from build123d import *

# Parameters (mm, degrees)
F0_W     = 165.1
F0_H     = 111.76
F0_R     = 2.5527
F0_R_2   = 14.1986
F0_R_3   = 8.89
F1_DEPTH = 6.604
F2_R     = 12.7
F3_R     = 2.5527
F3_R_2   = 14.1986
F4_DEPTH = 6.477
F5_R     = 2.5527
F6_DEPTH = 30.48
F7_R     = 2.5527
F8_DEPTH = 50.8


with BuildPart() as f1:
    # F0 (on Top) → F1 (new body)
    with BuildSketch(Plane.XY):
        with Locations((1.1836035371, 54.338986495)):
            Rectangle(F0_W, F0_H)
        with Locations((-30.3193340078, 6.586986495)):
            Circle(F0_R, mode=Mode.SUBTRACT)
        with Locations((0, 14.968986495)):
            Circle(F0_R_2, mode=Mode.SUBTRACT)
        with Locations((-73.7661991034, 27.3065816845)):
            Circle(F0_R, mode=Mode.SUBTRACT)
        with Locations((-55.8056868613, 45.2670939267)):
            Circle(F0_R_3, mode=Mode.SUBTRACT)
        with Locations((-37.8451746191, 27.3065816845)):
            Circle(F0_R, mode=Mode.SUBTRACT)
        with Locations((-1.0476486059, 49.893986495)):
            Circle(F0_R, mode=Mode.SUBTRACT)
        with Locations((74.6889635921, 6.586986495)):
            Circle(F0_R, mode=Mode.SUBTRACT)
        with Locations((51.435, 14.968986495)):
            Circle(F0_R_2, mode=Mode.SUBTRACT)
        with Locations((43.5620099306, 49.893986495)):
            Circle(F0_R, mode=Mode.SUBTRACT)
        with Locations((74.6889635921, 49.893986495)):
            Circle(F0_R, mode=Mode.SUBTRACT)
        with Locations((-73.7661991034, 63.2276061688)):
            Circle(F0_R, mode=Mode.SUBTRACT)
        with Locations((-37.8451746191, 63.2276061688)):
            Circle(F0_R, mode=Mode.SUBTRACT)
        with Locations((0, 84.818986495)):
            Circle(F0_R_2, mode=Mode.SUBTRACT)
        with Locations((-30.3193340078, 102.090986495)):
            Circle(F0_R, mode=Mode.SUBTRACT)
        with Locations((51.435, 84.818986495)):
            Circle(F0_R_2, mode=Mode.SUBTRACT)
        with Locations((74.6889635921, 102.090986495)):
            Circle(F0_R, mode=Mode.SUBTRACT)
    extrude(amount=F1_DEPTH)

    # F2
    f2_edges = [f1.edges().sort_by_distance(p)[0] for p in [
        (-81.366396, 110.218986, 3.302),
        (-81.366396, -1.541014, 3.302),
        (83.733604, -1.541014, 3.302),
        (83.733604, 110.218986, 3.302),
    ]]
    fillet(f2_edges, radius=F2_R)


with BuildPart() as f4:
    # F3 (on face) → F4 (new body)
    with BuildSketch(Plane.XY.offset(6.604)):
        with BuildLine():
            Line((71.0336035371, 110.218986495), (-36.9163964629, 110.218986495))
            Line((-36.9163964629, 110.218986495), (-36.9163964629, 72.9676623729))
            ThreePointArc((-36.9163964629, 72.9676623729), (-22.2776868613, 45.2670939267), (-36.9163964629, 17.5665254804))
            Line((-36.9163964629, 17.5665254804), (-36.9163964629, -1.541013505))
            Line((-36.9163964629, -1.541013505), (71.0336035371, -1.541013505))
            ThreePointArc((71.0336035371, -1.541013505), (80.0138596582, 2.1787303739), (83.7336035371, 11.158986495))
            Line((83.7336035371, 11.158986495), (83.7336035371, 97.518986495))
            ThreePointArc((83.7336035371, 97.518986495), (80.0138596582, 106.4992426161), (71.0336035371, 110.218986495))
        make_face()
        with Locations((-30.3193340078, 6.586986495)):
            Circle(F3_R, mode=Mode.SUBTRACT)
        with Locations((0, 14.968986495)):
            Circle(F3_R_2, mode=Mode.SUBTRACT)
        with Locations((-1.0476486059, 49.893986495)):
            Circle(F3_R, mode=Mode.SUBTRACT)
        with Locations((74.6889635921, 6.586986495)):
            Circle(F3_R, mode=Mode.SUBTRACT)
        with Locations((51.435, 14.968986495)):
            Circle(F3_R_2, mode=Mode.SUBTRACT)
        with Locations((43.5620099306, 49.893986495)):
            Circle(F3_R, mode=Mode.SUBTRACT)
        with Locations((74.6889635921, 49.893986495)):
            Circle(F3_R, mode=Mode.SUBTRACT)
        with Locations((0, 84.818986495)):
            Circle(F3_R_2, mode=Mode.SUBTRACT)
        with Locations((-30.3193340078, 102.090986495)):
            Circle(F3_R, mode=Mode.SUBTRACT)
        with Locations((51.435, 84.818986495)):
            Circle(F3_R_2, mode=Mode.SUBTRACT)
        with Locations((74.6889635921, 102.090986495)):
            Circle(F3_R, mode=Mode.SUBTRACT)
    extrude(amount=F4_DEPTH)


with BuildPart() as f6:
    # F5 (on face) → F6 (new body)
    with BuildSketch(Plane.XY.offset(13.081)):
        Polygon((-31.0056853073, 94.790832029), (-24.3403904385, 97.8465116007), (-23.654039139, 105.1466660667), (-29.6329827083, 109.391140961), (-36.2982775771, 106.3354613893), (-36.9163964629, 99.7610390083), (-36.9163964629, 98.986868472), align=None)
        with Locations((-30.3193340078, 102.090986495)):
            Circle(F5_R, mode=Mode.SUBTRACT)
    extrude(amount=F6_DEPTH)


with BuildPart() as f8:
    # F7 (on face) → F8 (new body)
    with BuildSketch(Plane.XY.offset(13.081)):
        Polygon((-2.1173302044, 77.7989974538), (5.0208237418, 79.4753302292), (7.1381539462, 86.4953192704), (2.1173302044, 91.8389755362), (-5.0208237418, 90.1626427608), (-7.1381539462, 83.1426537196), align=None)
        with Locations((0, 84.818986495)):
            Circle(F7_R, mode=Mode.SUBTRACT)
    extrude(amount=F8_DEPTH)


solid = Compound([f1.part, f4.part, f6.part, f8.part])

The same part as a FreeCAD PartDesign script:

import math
import FreeCAD as App
import Part
import Sketcher
from FreeCAD import Vector
Q = App.Units.Quantity


def edges_at(feature, points):
    """Names of the edges that pass closest to the given points."""
    edges = feature.Shape.Edges
    near = lambda p: min(range(len(edges)), key=lambda i: edges[i].distToShape(Part.Vertex(*p))[0])
    return sorted({f"Edge{near(p) + 1}" for p in points})


def add_polygon(sketch, points):
    """Adds a closed chain of lines whose ends are joined by coincident constraints."""
    first, n = sketch.GeometryCount, len(points)
    for a, b in zip(points, points[1:] + points[:1]):
        sketch.addGeometry(Part.LineSegment(App.Vector(*a, 0), App.Vector(*b, 0)), False)
    for i in range(n):
        sketch.addConstraint(Sketcher.Constraint("Coincident", first + i, 2, first + (i + 1) % n, 1))

doc = App.newDocument("Part")
body = doc.addObject("PartDesign::Body", "Body")

sketch1 = body.newObject("Sketcher::SketchObject", "Sketch")
sketch1.AttachmentSupport = (doc.getObject("XY_Plane"), [""])
sketch1.MapMode = "FlatFace"
add_polygon(sketch1, [(-81.4, 110.2), (-81.4, -1.5), (83.7, -1.5), (83.7, 110.2)])
sketch1.addGeometry(Part.Circle(Vector(-30.3, 6.6, 0), Vector(0, 0, 1), 2.6), False)
sketch1.addGeometry(Part.Circle(Vector(0, 15, 0), Vector(0, 0, 1), 14.2), False)
sketch1.addGeometry(Part.Circle(Vector(-73.8, 27.3, 0), Vector(0, 0, 1), 2.6), False)
sketch1.addGeometry(Part.Circle(Vector(-55.8, 45.3, 0), Vector(0, 0, 1), 8.9), False)
sketch1.addGeometry(Part.Circle(Vector(-37.8, 27.3, 0), Vector(0, 0, 1), 2.6), False)
sketch1.addGeometry(Part.Circle(Vector(-1, 49.9, 0), Vector(0, 0, 1), 2.6), False)
sketch1.addGeometry(Part.Circle(Vector(74.7, 6.6, 0), Vector(0, 0, 1), 2.6), False)
sketch1.addGeometry(Part.Circle(Vector(51.4, 15, 0), Vector(0, 0, 1), 14.2), False)
sketch1.addGeometry(Part.Circle(Vector(43.6, 49.9, 0), Vector(0, 0, 1), 2.6), False)
sketch1.addGeometry(Part.Circle(Vector(74.7, 49.9, 0), Vector(0, 0, 1), 2.6), False)
sketch1.addGeometry(Part.Circle(Vector(-73.8, 63.2, 0), Vector(0, 0, 1), 2.6), False)
sketch1.addGeometry(Part.Circle(Vector(-37.8, 63.2, 0), Vector(0, 0, 1), 2.6), False)
sketch1.addGeometry(Part.Circle(Vector(0, 84.8, 0), Vector(0, 0, 1), 14.2), False)
sketch1.addGeometry(Part.Circle(Vector(-30.3, 102.1, 0), Vector(0, 0, 1), 2.6), False)
sketch1.addGeometry(Part.Circle(Vector(51.4, 84.8, 0), Vector(0, 0, 1), 14.2), False)
sketch1.addGeometry(Part.Circle(Vector(74.7, 102.1, 0), Vector(0, 0, 1), 2.6), False)
sketch1.addConstraint([
    Sketcher.Constraint("Vertical", 0),
    Sketcher.Constraint("Horizontal", 1),
    Sketcher.Constraint("Vertical", 2),
    Sketcher.Constraint("Horizontal", 3),
    Sketcher.Constraint("Equal", 4, 6),
    Sketcher.Constraint("Equal", 6, 8),
    Sketcher.Constraint("Equal", 8, 9),
    Sketcher.Constraint("Equal", 9, 10),
    Sketcher.Constraint("Equal", 5, 11),
    Sketcher.Constraint("Equal", 10, 12),
    Sketcher.Constraint("Equal", 12, 13),
    Sketcher.Constraint("Equal", 13, 14),
    Sketcher.Constraint("Equal", 14, 15),
    Sketcher.Constraint("Equal", 11, 16),
    Sketcher.Constraint("Equal", 15, 17),
    Sketcher.Constraint("Equal", 16, 18),
    Sketcher.Constraint("Equal", 17, 19),
    Sketcher.Constraint("PointOnObject", 5, 3, -2),
    Sketcher.Constraint("PointOnObject", 16, 3, -2),
    Sketcher.Constraint("Horizontal", 6, 3, 8, 3),
    Sketcher.Constraint("Horizontal", 4, 3, 10, 3),
    Sketcher.Constraint("Horizontal", 5, 3, 11, 3),
    Sketcher.Constraint("Horizontal", 9, 3, 12, 3),
    Sketcher.Constraint("Horizontal", 12, 3, 13, 3),
    Sketcher.Constraint("Horizontal", 14, 3, 15, 3),
    Sketcher.Constraint("Horizontal", 16, 3, 18, 3),
    Sketcher.Constraint("Horizontal", 17, 3, 19, 3),
    Sketcher.Constraint("Vertical", 10, 3, 13, 3),
    Sketcher.Constraint("Vertical", 6, 3, 14, 3),
    Sketcher.Constraint("Vertical", 8, 3, 15, 3),
    Sketcher.Constraint("Vertical", 4, 3, 17, 3),
    Sketcher.Constraint("Vertical", 11, 3, 18, 3),
    Sketcher.Constraint("Vertical", 13, 3, 19, 3),
    Sketcher.Constraint("Diameter", 7, Q("0.7 in")),
    Sketcher.Constraint("Diameter", 4, Q("0.201 in")),
    Sketcher.Constraint("Diameter", 5, Q("1.118 in")),
    Sketcher.Constraint("DistanceX", 1, 1, 1, 2, Q("6.5 in")),
    Sketcher.Constraint("DistanceY", 0, 2, 0, 1, Q("4.4 in")),
    Sketcher.Constraint("DistanceY", 18, 3, 2, 2, Q("1 in")),
    Sketcher.Constraint("DistanceY", 4, 3, 5, 3, Q("0.33 in")),
    Sketcher.Constraint("DistanceY", 16, 3, 17, 3, Q("0.68 in")),
    Sketcher.Constraint("DistanceY", 11, 3, 18, 3, Q("2.75 in")),
    Sketcher.Constraint("DistanceX", -1, 1, 11, 3, Q("2.025 in")),
    Sketcher.Constraint("DistanceY", 5, 3, 9, 3, Q("1.375 in")),
    Sketcher.Constraint("DistanceX", 6, 3, -1, 1, Q("73.766199 mm")),
    Sketcher.Constraint("DistanceY", -1, 1, 6, 3, Q("27.306582 mm")),
    Sketcher.Constraint("DistanceX", 9, 3, -1, 1, Q("1.047649 mm")),
    Sketcher.Constraint("DistanceX", -1, 1, 12, 3, Q("43.56201 mm")),
    Sketcher.Constraint("DistanceX", 8, 3, 4, 3, Q("7.525841 mm")),
    Sketcher.Constraint("DistanceX", 7, 3, 9, 3, Q("54.758038 mm")),
    Sketcher.Constraint("DistanceX", 8, 3, 10, 3, Q("112.534138 mm")),
    Sketcher.Constraint("DistanceX", 7, 3, 10, 3, Q("130.49465 mm")),
    Sketcher.Constraint("DistanceY", 4, 3, 14, 3, Q("56.64062 mm")),
    Sketcher.Constraint("DistanceX", 0, 2, 8, 3, Q("43.521222 mm")),
    Sketcher.Constraint("DistanceY", -1, 1, 4, 3, Q("6.586986 mm")),
    Sketcher.Constraint("DistanceY", -1, 1, 7, 3, Q("45.267094 mm")),
])
pad1 = body.newObject("PartDesign::Pad", "Pad")
pad1.Profile = sketch1
pad1.Length = Q("0.26 in")
doc.recompute()

fillet = body.newObject("PartDesign::Fillet", "Fillet")
fillet.Base = (pad1, edges_at(pad1, [
    (-81.366, 110.219, 3.302),
    (-81.366, -1.541, 3.302),
    (83.734, -1.541, 3.302),
    (83.734, 110.219, 3.302),
]))
fillet.Radius = Q("0.5 in")
body2 = doc.addObject("PartDesign::Body", "Body001")

sketch2 = body2.newObject("Sketcher::SketchObject", "Sketch001")
sketch2.AttachmentSupport = (doc.getObject("XY_Plane001"), [""])
sketch2.MapMode = "FlatFace"
sketch2.AttachmentOffset = App.Placement(Vector(0, 0, 0.26 * 25.4), App.Rotation())
sketch2.addGeometry([
    Part.LineSegment(Vector(71, 110.2, 0), Vector(-36.9, 110.2, 0)),
    Part.LineSegment(Vector(-36.9, 110.2, 0), Vector(-36.9, 73, 0)),
    Part.ArcOfCircle(Part.Circle(Vector(-55.8, 45.3, 0), Vector(0, 0, 1), 33.5), math.radians(-56), math.radians(56)),
    Part.LineSegment(Vector(-36.9, 17.6, 0), Vector(-36.9, -1.5, 0)),
    Part.LineSegment(Vector(-36.9, -1.5, 0), Vector(71, -1.5, 0)),
    Part.ArcOfCircle(Part.Circle(Vector(71, 11.2, 0), Vector(0, 0, 1), 12.7), math.radians(-90), math.radians(0)),
    Part.LineSegment(Vector(83.7, 11.2, 0), Vector(83.7, 97.5, 0)),
    Part.ArcOfCircle(Part.Circle(Vector(71, 97.5, 0), Vector(0, 0, 1), 12.7), math.radians(0), math.radians(90)),
    Part.Circle(Vector(-30.3, 6.6, 0), Vector(0, 0, 1), 2.6),
    Part.Circle(Vector(0, 15, 0), Vector(0, 0, 1), 14.2),
    Part.Circle(Vector(-1, 49.9, 0), Vector(0, 0, 1), 2.6),
    Part.Circle(Vector(74.7, 6.6, 0), Vector(0, 0, 1), 2.6),
    Part.Circle(Vector(51.4, 15, 0), Vector(0, 0, 1), 14.2),
    Part.Circle(Vector(43.6, 49.9, 0), Vector(0, 0, 1), 2.6),
    Part.Circle(Vector(74.7, 49.9, 0), Vector(0, 0, 1), 2.6),
    Part.Circle(Vector(-30.3, 102.1, 0), Vector(0, 0, 1), 2.6),
    Part.Circle(Vector(0, 84.8, 0), Vector(0, 0, 1), 14.2),
    Part.Circle(Vector(51.4, 84.8, 0), Vector(0, 0, 1), 14.2),
    Part.Circle(Vector(74.7, 102.1, 0), Vector(0, 0, 1), 2.6),
], False)
sketch2.addConstraint([
    Sketcher.Constraint("Coincident", 0, 2, 1, 1),
    Sketcher.Constraint("Coincident", 1, 2, 2, 2),
    Sketcher.Constraint("Coincident", 2, 1, 3, 1),
    Sketcher.Constraint("Coincident", 3, 2, 4, 1),
    Sketcher.Constraint("Tangent", 4, 2, 5, 1),
    Sketcher.Constraint("Tangent", 5, 2, 6, 1),
    Sketcher.Constraint("Tangent", 6, 2, 7, 1),
    Sketcher.Constraint("Tangent", 7, 2, 0, 1),
    Sketcher.Constraint("Horizontal", 0),
    Sketcher.Constraint("Vertical", 1),
    Sketcher.Constraint("Vertical", 3),
    Sketcher.Constraint("Horizontal", 4),
    Sketcher.Constraint("Vertical", 6),
    Sketcher.Constraint("Equal", 5, 7),
    Sketcher.Constraint("Equal", 8, 10),
    Sketcher.Constraint("Equal", 10, 11),
    Sketcher.Constraint("Equal", 9, 12),
    Sketcher.Constraint("Equal", 11, 13),
    Sketcher.Constraint("Equal", 13, 14),
    Sketcher.Constraint("Equal", 14, 15),
    Sketcher.Constraint("Equal", 12, 16),
    Sketcher.Constraint("Equal", 16, 17),
    Sketcher.Constraint("Equal", 15, 18),
    Sketcher.Constraint("PointOnObject", 9, 3, -2),
    Sketcher.Constraint("PointOnObject", 16, 3, -2),
    Sketcher.Constraint("Horizontal", 8, 3, 11, 3),
    Sketcher.Constraint("Horizontal", 9, 3, 12, 3),
    Sketcher.Constraint("Horizontal", 10, 3, 13, 3),
    Sketcher.Constraint("Horizontal", 13, 3, 14, 3),
    Sketcher.Constraint("Horizontal", 16, 3, 17, 3),
    Sketcher.Constraint("Horizontal", 15, 3, 18, 3),
    Sketcher.Constraint("Vertical", 11, 3, 14, 3),
    Sketcher.Constraint("Vertical", 8, 3, 15, 3),
    Sketcher.Constraint("Vertical", 12, 3, 17, 3),
    Sketcher.Constraint("Vertical", 14, 3, 18, 3),
    Sketcher.Constraint("Vertical", 1, 2, 2, 1),
    Sketcher.Constraint("Radius", 5, Q("0.5 in")),
    Sketcher.Constraint("Radius", 2, Q("1.32 in")),
    Sketcher.Constraint("Diameter", 8, Q("0.201 in")),
    Sketcher.Constraint("Diameter", 9, Q("1.118 in")),
    Sketcher.Constraint("DistanceY", 6, 1, 6, 2, Q("3.4 in")),
    Sketcher.Constraint("DistanceY", 16, 3, 0, 2, Q("1 in")),
    Sketcher.Constraint("DistanceX", 0, 2, 0, 1, Q("4.25 in")),
    Sketcher.Constraint("DistanceY", 8, 3, 5, 3, Q("0.18 in")),
    Sketcher.Constraint("DistanceY", 8, 3, 9, 3, Q("0.33 in")),
    Sketcher.Constraint("DistanceY", 9, 3, 15, 3, Q("3.43 in")),
    Sketcher.Constraint("DistanceX", -1, 1, 12, 3, Q("2.025 in")),
    Sketcher.Constraint("DistanceY", 9, 3, 10, 3, Q("1.375 in")),
    Sketcher.Constraint("DistanceY", 3, 2, 3, 1, Q("19.107539 mm")),
    Sketcher.Constraint("DistanceY", 1, 2, 1, 1, Q("37.251324 mm")),
    Sketcher.Constraint("DistanceX", 10, 3, -1, 1, Q("1.047649 mm")),
    Sketcher.Constraint("DistanceX", -1, 1, 13, 3, Q("43.56201 mm")),
    Sketcher.Constraint("DistanceX", 2, 3, 10, 3, Q("54.758038 mm")),
    Sketcher.Constraint("DistanceX", 5, 3, 11, 3, Q("3.65536 mm")),
    Sketcher.Constraint("DistanceY", -1, 1, 2, 3, Q("45.267094 mm")),
    Sketcher.Constraint("DistanceX", 8, 3, -1, 1, Q("30.319334 mm")),
])
pad2 = body2.newObject("PartDesign::Pad", "Pad001")
pad2.Profile = sketch2
pad2.Length = Q("0.255 in")
body3 = doc.addObject("PartDesign::Body", "Body002")

sketch3 = body3.newObject("Sketcher::SketchObject", "Sketch002")
sketch3.AttachmentSupport = (doc.getObject("XY_Plane002"), [""])
sketch3.MapMode = "FlatFace"
sketch3.AttachmentOffset = App.Placement(Vector(0, 0, 0.515 * 25.4), App.Rotation())
add_polygon(sketch3, [(-31, 94.8), (-24.3, 97.8), (-23.7, 105.1), (-29.6, 109.4), (-36.3, 106.3), (-36.9, 99.8), (-36.9, 99)])
sketch3.addGeometry(Part.Circle(Vector(-30.3, 102.1, 0), Vector(0, 0, 1), 2.6), False)
sketch3.addConstraint([
    Sketcher.Constraint("Vertical", 5),
    Sketcher.Constraint("Parallel", 0, 3),
    Sketcher.Constraint("Parallel", 1, 4),
    Sketcher.Constraint("Parallel", 2, 6),
    Sketcher.Constraint("Equal", 0, 1),
    Sketcher.Constraint("Equal", 1, 2),
    Sketcher.Constraint("Equal", 2, 3),
    Sketcher.Constraint("Diameter", 7, Q("0.201 in")),
    Sketcher.Constraint("DistanceY", -1, 1, 4, 2, Q("3.9276 in")),
    Sketcher.Constraint("DistanceY", 5, 2, 5, 1, Q("0.774171 mm")),
    Sketcher.Constraint("DistanceY", 4, 2, 2, 2, Q("9.630102 mm")),
    Sketcher.Constraint("Distance", 0, Q("7.332348 mm")),
    Sketcher.Constraint("Distance", 6, Q("7.248671 mm")),
    Sketcher.Constraint("DistanceX", 0, 2, -1, 1, Q("24.34039 mm")),
    Sketcher.Constraint("DistanceY", -1, 1, 0, 2, Q("97.846512 mm")),
    Sketcher.Constraint("DistanceY", 7, 3, 1, 2, Q("3.05568 mm")),
    Sketcher.Constraint("DistanceX", 7, 3, 2, 2, Q("0.686351 mm")),
])
pad3 = body3.newObject("PartDesign::Pad", "Pad002")
pad3.Profile = sketch3
pad3.Length = Q("1.2 in")
body4 = doc.addObject("PartDesign::Body", "Body003")

sketch4 = body4.newObject("Sketcher::SketchObject", "Sketch003")
sketch4.AttachmentSupport = (doc.getObject("XY_Plane003"), [""])
sketch4.MapMode = "FlatFace"
sketch4.AttachmentOffset = App.Placement(Vector(0, 0, 0.515 * 25.4), App.Rotation())
add_polygon(sketch4, [(-2.1, 77.8), (5, 79.5), (7.1, 86.5), (2.1, 91.8), (-5, 90.2), (-7.1, 83.1)])
sketch4.addGeometry(Part.Circle(Vector(0, 84.8, 0), Vector(0, 0, 1), 2.6), False)
sketch4.addConstraint([
    Sketcher.Constraint("PointOnObject", 6, 3, -2),
    Sketcher.Constraint("Parallel", 0, 3),
    Sketcher.Constraint("Parallel", 1, 4),
    Sketcher.Constraint("Parallel", 2, 5),
    Sketcher.Constraint("Equal", 0, 1),
    Sketcher.Constraint("Equal", 1, 2),
    Sketcher.Constraint("Equal", 2, 3),
    Sketcher.Constraint("Diameter", 6, Q("0.201 in")),
    Sketcher.Constraint("DistanceX", 3, 2, 1, 2, Q("0.4786999 in")),
    Sketcher.Constraint("Distance", 0, Q("7.332348 mm")),
    Sketcher.Constraint("DistanceY", -1, 1, 0, 2, Q("79.47533 mm")),
    Sketcher.Constraint("DistanceY", -1, 1, 1, 2, Q("86.495319 mm")),
    Sketcher.Constraint("DistanceX", -1, 1, 2, 2, Q("2.11733 mm")),
    Sketcher.Constraint("DistanceX", 5, 2, -1, 1, Q("2.11733 mm")),
    Sketcher.Constraint("DistanceY", 6, 3, 2, 2, Q("7.019989 mm")),
])
pad4 = body4.newObject("PartDesign::Pad", "Pad003")
pad4.Profile = sketch4
pad4.Length = Q("2 in")

doc.recompute()
